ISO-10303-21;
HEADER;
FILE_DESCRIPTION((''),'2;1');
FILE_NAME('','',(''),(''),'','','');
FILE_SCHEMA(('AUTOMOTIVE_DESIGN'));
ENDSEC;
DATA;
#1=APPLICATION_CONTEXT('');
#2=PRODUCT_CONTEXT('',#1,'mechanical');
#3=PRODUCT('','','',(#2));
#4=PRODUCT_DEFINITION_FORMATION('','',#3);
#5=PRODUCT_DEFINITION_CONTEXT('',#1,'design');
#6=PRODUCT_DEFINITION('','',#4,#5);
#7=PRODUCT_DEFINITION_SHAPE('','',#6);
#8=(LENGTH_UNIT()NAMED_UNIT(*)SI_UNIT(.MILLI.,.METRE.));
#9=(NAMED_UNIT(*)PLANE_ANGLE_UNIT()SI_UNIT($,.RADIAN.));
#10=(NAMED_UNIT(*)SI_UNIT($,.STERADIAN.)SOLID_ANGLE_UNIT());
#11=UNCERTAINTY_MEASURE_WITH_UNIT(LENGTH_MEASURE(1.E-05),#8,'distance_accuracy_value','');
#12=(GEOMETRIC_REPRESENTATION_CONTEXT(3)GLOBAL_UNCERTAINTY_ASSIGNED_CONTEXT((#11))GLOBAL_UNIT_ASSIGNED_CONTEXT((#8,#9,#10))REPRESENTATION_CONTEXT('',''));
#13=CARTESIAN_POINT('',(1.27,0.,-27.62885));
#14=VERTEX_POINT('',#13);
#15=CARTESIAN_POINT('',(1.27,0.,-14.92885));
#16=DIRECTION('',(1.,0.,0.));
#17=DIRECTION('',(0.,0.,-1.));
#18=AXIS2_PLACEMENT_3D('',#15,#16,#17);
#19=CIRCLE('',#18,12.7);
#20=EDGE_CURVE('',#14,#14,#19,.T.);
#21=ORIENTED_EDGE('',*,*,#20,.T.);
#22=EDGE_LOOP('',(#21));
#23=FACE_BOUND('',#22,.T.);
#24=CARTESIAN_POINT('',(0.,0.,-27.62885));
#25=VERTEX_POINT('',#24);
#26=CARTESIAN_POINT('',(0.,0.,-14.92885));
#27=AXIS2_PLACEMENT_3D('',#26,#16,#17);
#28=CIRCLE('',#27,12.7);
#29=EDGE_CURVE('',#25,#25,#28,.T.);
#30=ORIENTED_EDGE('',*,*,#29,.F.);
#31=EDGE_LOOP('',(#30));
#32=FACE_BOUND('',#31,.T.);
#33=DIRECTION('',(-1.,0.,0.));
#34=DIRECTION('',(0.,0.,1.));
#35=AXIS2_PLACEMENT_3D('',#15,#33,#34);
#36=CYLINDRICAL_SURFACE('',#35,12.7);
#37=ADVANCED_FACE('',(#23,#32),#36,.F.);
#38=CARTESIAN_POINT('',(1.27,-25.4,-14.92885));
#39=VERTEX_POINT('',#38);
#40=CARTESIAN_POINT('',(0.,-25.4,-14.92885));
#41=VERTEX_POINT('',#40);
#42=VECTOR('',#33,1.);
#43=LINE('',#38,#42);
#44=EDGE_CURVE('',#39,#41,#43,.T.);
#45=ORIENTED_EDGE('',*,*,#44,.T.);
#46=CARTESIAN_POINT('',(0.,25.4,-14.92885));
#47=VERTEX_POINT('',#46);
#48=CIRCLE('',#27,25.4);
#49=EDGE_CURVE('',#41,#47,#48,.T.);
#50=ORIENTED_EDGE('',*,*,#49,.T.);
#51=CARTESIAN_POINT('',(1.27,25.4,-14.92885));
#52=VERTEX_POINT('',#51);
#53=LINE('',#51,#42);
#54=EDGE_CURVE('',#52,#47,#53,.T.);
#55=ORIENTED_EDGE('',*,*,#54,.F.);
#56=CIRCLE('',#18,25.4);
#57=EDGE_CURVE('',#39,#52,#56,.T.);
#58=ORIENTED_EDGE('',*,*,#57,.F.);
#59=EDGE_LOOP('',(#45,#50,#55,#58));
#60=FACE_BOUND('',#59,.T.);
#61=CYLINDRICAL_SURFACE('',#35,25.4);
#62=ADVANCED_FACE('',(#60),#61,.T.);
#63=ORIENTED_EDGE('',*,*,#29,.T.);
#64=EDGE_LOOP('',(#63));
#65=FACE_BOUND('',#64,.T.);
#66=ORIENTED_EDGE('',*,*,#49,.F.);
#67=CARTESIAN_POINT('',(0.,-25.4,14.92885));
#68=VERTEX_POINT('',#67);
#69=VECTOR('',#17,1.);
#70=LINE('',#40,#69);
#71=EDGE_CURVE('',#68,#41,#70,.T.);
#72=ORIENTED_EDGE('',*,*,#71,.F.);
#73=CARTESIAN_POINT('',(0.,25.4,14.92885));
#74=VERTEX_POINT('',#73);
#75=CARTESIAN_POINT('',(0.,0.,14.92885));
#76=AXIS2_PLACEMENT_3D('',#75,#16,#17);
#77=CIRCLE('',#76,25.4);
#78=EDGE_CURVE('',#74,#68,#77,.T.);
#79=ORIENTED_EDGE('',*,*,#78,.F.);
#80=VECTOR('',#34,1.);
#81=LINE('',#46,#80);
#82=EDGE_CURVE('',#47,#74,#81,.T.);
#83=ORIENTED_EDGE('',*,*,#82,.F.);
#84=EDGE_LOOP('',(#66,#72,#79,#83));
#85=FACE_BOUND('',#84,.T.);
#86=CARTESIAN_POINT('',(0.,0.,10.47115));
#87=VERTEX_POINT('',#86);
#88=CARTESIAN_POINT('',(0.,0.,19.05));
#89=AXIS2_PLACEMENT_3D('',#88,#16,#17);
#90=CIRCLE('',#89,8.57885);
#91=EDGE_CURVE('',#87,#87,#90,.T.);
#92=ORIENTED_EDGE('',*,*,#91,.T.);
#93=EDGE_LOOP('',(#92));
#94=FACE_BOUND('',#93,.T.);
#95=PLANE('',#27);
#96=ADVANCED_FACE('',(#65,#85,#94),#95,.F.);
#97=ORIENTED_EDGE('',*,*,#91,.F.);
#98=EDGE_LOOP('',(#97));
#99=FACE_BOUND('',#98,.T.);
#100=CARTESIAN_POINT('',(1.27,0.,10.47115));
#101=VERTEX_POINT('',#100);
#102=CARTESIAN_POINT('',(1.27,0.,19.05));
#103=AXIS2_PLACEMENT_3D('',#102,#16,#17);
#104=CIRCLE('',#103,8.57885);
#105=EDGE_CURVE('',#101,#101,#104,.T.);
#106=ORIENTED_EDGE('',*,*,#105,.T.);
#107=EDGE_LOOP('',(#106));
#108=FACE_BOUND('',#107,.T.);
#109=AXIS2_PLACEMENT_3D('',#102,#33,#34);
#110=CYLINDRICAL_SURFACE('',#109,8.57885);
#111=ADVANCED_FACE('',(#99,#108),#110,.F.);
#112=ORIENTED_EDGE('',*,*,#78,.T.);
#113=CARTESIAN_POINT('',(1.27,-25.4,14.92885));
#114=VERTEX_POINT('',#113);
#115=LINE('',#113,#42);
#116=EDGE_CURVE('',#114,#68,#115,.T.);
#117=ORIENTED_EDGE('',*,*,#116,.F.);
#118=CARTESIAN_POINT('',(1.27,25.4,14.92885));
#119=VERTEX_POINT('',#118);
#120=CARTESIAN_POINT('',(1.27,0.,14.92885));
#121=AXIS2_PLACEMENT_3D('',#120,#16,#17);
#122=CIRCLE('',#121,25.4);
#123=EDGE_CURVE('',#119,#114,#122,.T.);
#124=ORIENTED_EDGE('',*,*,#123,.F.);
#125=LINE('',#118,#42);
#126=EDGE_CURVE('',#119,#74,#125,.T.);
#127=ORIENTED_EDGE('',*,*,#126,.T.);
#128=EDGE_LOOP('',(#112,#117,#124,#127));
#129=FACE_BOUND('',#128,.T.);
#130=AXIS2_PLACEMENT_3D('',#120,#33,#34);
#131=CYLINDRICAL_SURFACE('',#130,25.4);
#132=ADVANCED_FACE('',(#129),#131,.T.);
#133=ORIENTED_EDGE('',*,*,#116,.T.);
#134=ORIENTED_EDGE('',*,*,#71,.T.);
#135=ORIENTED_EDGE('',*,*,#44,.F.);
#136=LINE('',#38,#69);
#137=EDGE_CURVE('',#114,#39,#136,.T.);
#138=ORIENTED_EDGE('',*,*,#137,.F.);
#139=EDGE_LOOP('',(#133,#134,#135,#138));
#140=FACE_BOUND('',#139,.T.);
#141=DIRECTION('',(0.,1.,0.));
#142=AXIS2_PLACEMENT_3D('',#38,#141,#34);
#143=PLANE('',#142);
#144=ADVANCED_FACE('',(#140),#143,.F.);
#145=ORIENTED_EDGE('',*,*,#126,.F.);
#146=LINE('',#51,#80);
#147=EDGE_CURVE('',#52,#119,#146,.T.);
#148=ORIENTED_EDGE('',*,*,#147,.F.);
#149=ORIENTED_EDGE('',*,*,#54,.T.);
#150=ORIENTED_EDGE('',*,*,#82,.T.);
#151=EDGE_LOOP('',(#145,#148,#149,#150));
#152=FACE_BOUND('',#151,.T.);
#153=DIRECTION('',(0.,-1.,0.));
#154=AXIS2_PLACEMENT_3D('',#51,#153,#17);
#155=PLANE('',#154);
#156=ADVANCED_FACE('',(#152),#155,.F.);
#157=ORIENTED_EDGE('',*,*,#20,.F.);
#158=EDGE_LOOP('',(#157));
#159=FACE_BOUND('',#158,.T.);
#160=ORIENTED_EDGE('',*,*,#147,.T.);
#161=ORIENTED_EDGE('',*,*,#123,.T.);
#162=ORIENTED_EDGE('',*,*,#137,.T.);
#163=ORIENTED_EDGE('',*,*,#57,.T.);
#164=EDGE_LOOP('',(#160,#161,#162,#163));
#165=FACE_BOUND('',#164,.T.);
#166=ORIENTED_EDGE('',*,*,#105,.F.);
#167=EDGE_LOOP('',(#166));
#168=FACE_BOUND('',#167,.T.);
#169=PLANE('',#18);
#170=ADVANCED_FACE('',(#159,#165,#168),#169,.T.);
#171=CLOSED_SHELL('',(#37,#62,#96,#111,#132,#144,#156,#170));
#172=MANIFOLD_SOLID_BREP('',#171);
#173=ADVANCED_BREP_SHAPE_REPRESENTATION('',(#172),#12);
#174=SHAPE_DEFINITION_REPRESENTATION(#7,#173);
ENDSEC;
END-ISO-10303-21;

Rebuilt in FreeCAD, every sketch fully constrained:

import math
import FreeCAD as App
import Part
import Sketcher
Q = App.Units.Quantity

doc = App.newDocument("Part")
body = doc.addObject("PartDesign::Body", "Body")

# Sketch on YZ plane
sketch1 = doc.addObject("Sketcher::SketchObject", "Sketch")
body.addObject(sketch1)
sketch1.AttachmentSupport = (doc.YZ_Plane, [""])
sketch1.MapMode = "FlatFace"
sketch1.addGeometry([
    Part.LineSegment(App.Vector(-25, 15, 0), App.Vector(-25, -15, 0)),  # 0
    Part.ArcOfCircle(Part.Circle(App.Vector(0, -15, 0), App.Vector(0, 0, 1), 25), math.radians(180), math.radians(360)),  # 1
    Part.LineSegment(App.Vector(25, -15, 0), App.Vector(25, 15, 0)),  # 2
    Part.ArcOfCircle(Part.Circle(App.Vector(0, 15, 0), App.Vector(0, 0, 1), 25), math.radians(0), math.radians(180)),  # 3
    Part.Circle(App.Vector(0, -15, 0), App.Vector(0, 0, 1), 13),  # 4
    Part.Circle(App.Vector(0, 19, 0), App.Vector(0, 0, 1), 9),  # 5
], False)
sketch1.addConstraint([
    Sketcher.Constraint("Tangent", 0, 2, 1, 1),
    Sketcher.Constraint("Tangent", 1, 2, 2, 1),
    Sketcher.Constraint("Tangent", 2, 2, 3, 1),
    Sketcher.Constraint("Tangent", 3, 2, 0, 1),
    Sketcher.Constraint("Vertical", 0),
    Sketcher.Constraint("Vertical", 2),
    Sketcher.Constraint("Coincident", 4, 3, 1, 3),
    Sketcher.Constraint("Symmetric", 1, 3, 3, 3, -1, 1),
    Sketcher.Constraint("PointOnObject", 5, 3, -2),
    Sketcher.Constraint("Diameter", 4, Q("1 in")),
    Sketcher.Constraint("Radius", 1, Q("1 in")),
    Sketcher.Constraint("Diameter", 5, Q("0.6755 in")),
    Sketcher.Constraint("DistanceY", -1, 1, 5, 3, Q("0.75 in")),
    Sketcher.Constraint("DistanceY", 0, 2, 0, 1, Q("1.1755 in")),
])
pad1 = doc.addObject("PartDesign::Pad", "Pad")
body.addObject(pad1)
pad1.Profile = sketch1
pad1.Length = Q("0.05 in")

doc.recompute()
